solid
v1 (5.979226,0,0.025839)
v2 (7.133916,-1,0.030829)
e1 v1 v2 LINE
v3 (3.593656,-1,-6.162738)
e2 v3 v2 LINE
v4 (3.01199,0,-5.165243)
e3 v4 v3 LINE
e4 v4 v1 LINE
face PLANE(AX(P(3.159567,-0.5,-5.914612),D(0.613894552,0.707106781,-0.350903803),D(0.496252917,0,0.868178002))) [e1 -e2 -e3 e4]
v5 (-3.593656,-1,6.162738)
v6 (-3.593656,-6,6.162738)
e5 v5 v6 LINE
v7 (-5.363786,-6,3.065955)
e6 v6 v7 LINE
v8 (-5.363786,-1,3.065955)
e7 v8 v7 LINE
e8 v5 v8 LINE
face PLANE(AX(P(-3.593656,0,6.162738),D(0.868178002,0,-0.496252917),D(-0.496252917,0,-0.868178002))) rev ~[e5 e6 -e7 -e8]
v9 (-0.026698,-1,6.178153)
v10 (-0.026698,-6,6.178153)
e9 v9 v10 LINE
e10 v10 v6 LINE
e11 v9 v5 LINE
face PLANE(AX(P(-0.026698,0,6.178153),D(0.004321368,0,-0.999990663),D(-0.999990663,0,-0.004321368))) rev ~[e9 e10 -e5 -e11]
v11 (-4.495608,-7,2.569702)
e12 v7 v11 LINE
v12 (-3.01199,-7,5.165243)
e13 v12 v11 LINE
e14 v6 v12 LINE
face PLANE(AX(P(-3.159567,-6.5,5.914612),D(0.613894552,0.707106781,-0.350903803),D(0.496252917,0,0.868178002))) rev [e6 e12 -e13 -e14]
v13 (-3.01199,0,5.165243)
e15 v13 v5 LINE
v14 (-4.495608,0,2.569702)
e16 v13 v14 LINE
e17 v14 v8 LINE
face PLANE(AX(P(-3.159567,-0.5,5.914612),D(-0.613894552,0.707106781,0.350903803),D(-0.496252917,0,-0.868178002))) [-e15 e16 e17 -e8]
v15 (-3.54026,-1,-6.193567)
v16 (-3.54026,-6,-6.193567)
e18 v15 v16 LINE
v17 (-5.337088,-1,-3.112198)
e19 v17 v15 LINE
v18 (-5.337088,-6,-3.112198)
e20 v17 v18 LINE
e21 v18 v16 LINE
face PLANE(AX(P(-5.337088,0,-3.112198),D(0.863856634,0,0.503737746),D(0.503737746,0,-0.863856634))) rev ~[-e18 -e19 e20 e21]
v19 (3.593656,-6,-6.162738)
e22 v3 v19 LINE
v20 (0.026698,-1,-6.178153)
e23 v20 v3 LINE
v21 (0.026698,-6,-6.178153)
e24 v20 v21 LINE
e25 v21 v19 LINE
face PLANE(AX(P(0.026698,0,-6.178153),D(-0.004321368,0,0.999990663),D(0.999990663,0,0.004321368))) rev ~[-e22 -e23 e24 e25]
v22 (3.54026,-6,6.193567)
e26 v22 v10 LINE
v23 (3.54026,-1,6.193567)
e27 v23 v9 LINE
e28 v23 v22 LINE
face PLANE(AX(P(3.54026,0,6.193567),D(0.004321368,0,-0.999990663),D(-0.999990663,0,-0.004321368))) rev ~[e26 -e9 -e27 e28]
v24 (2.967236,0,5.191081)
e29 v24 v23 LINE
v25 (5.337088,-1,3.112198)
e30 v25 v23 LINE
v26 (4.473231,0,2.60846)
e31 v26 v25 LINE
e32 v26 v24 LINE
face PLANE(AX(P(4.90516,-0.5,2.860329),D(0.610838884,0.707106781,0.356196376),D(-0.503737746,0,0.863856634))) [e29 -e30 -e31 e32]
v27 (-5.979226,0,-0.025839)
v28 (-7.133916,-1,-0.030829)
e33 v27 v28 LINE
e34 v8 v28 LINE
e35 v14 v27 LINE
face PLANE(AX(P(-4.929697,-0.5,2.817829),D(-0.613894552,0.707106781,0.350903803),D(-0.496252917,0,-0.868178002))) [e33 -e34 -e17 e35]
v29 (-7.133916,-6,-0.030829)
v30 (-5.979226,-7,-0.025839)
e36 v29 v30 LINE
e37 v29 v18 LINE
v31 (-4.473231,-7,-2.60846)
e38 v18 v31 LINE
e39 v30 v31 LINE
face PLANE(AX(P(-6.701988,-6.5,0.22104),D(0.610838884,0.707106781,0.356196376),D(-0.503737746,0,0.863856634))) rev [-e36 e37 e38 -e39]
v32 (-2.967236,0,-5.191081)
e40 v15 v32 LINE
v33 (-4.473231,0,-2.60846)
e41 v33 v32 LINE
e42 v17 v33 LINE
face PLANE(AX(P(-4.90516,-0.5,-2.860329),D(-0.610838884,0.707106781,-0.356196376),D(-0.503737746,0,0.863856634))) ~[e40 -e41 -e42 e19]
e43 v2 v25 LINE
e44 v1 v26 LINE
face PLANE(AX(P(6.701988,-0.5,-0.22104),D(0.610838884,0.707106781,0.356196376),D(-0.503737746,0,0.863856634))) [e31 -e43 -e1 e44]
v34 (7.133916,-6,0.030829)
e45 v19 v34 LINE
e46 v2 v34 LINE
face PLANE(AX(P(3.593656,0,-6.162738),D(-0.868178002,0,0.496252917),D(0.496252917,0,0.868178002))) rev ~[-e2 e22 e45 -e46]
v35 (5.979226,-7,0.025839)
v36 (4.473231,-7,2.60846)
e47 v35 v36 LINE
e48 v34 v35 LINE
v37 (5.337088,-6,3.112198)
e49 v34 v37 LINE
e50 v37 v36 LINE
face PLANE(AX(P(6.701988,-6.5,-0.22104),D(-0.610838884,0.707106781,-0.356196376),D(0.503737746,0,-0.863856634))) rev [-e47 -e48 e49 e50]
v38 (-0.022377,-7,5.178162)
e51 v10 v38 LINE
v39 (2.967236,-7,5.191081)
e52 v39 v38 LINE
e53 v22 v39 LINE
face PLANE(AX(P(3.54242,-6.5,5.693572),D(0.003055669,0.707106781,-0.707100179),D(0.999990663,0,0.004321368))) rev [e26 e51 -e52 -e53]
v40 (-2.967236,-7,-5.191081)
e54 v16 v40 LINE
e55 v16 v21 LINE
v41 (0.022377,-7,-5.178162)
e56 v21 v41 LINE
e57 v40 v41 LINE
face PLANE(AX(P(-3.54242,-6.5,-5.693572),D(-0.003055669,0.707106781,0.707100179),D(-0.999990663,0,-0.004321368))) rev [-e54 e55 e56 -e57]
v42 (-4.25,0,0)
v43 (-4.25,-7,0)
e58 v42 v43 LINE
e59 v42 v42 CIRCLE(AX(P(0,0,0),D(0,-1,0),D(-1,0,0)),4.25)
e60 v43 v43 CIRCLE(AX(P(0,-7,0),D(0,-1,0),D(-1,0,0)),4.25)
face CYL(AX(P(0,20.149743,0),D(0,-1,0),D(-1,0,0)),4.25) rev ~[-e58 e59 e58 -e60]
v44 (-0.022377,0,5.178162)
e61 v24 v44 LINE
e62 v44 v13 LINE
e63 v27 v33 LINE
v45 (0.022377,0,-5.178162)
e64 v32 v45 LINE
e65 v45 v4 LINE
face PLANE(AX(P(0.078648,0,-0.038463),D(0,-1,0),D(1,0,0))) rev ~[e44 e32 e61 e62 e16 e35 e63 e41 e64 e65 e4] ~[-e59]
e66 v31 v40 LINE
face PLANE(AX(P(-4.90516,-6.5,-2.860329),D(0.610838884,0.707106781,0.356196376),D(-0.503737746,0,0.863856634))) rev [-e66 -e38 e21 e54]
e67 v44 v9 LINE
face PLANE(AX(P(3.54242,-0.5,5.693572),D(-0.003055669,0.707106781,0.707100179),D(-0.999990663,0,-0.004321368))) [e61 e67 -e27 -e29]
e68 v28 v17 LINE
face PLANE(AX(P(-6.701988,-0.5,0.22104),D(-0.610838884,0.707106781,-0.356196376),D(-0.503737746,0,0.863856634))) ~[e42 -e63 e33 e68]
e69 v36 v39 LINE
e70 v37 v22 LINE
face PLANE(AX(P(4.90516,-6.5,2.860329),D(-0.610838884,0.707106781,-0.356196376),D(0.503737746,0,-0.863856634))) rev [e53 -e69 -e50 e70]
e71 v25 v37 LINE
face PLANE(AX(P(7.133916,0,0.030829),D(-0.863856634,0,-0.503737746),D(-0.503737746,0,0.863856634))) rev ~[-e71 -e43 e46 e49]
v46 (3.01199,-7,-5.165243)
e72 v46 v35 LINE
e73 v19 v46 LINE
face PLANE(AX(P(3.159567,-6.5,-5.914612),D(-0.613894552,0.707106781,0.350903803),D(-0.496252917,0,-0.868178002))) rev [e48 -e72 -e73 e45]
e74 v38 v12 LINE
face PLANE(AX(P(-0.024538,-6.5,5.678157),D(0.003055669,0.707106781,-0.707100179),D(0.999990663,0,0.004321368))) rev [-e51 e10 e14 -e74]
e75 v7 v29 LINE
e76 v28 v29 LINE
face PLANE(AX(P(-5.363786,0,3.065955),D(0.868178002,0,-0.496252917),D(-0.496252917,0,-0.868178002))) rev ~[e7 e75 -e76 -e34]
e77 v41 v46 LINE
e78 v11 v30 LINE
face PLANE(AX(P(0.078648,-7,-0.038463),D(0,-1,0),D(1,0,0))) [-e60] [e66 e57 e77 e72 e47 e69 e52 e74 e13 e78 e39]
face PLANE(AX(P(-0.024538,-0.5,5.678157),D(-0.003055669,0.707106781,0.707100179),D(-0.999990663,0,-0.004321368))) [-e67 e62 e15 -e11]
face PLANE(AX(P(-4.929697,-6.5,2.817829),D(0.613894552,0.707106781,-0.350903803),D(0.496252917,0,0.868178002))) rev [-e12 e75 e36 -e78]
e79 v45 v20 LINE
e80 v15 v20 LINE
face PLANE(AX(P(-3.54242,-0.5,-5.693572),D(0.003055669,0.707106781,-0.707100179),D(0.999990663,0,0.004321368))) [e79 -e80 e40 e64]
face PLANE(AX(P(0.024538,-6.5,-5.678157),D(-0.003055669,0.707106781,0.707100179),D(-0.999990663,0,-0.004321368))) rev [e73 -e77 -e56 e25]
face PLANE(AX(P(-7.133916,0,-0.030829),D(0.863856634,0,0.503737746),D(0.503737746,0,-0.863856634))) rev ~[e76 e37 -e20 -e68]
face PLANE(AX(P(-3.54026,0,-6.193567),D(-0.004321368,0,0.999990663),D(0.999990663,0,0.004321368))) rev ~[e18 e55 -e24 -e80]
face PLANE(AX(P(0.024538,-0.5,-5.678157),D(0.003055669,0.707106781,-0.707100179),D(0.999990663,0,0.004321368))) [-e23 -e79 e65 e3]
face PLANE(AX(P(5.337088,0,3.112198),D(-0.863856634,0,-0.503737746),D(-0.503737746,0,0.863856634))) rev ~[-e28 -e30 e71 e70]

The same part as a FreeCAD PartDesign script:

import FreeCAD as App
import Part
import Sketcher


def edges_at(feature, points):
    """Names of the edges that pass closest to the given points."""
    edges = feature.Shape.Edges
    near = lambda p: min(range(len(edges)), key=lambda i: edges[i].distToShape(Part.Vertex(*p))[0])
    return sorted({f"Edge{near(p) + 1}" for p in points})


def add_polygon(sketch, points):
    """Adds a closed chain of lines whose ends are joined by coincident constraints."""
    first, n = sketch.GeometryCount, len(points)
    for a, b in zip(points, points[1:] + points[:1]):
        sketch.addGeometry(Part.LineSegment(App.Vector(*a, 0), App.Vector(*b, 0)), False)
    for i in range(n):
        sketch.addConstraint(Sketcher.Constraint("Coincident", first + i, 2, first + (i + 1) % n, 1))

doc = App.newDocument("Part")
params = doc.addObject("Spreadsheet::Sheet", "Params")
for row, (alias, value) in enumerate([
    ("pad1_length", "7 mm"),
    ("chamfer_size", "1 mm"),
    ("chamfer2_size", "1 mm"),
    ("sketch2_diameter", "8.5 mm"),
    ("hole_diameter", "8.5 mm"),
], start=1):
    params.set(f"A{row}", alias)
    params.set(f"B{row}", "=" + value)
    params.setAlias(f"B{row}", alias)

body = doc.addObject("PartDesign::Body", "Body")

# Sketch on XZ plane
sketch1 = body.newObject("Sketcher::SketchObject", "Sketch")
sketch1.AttachmentSupport = (doc.getObject("XZ_Plane"), [""])
sketch1.MapMode = "FlatFace"
add_polygon(sketch1, [(-5.3, -3.1), (-3.5, -6.2), (0, -6.2), (3.6, -6.2), (7.1, 0), (5.3, 3.1), (3.5, 6.2), (0, 6.2), (-3.6, 6.2), (-5.4, 3.1), (-7.1, 0)])  # lines 0-10
sketch1.addConstraint(Sketcher.Constraint("Symmetric", 0, 2, 5, 2, -1, 1))
sketch1.addConstraint(Sketcher.Constraint("Symmetric", 1, 2, 6, 2, -1, 1))
sketch1.addConstraint(Sketcher.Constraint("Symmetric", 2, 2, 7, 2, -1, 1))
sketch1.addConstraint(Sketcher.Constraint("Symmetric", 3, 2, 9, 2, -1, 1))
sketch1.addConstraint(Sketcher.Constraint("Symmetric", 4, 2, 10, 2, -1, 1))
sketch1.addConstraint(Sketcher.Constraint("Parallel", 1, 2))
sketch1.addConstraint(Sketcher.Constraint("Parallel", 0, 4))
sketch1.addConstraint(Sketcher.Constraint("Parallel", 3, 8))
sketch1.addConstraint(Sketcher.Constraint("Equal", 0, 1))
sketch1.addConstraint(Sketcher.Constraint("Equal", 1, 2))
sketch1.addConstraint(Sketcher.Constraint("Equal", 2, 4))
sketch1.addConstraint(Sketcher.Constraint("Equal", 7, 8))
sketch1.addConstraint(Sketcher.Constraint("Equal", 8, 9))
sketch1.addConstraint(Sketcher.Constraint("DistanceX", -1, 1, 1, 2, 0.026698))
sketch1.addConstraint(Sketcher.Constraint("Distance", 0, 3.566991))
sketch1.addConstraint(Sketcher.Constraint("DistanceY", 2, 2, -1, 1, 6.162738))
sketch1.addConstraint(Sketcher.Constraint("DistanceY", -1, 1, 3, 2, 0.030829))
pad1 = body.newObject("PartDesign::Pad", "Pad")
pad1.Profile = sketch1
pad1.setExpression("Length", "Params.pad1_length")
doc.recompute()

chamfer = body.newObject("PartDesign::Chamfer", "Chamfer")
chamfer.Base = (pad1, edges_at(pad1, [
    (-4.479, -7, 4.614),
    (1.757, -7, 6.186),
    (4.439, -7, 4.653),
    (5.364, -7, -3.066),
    (-1.757, -7, -6.186),
    (-4.439, -7, -4.653),
]))
chamfer.setExpression("Size", "Params.chamfer_size")
doc.recompute()

chamfer2 = body.newObject("PartDesign::Chamfer", "Chamfer001")
chamfer2.Base = (chamfer, edges_at(chamfer, [
    (4.439, 0, 4.653),
    (1.757, 0, 6.186),
    (-4.479, 0, 4.614),
    (-4.439, 0, -4.653),
    (-1.757, 0, -6.186),
    (5.364, 0, -3.066),
]))
chamfer2.setExpression("Size", "Params.chamfer2_size")

# Sketch on XZ plane
sketch2 = body.newObject("Sketcher::SketchObject", "Sketch001")
sketch2.AttachmentSupport = (doc.getObject("XZ_Plane"), [""])
sketch2.MapMode = "FlatFace"
sketch2.addGeometry(Part.Circle(App.Vector(0, 0, 0), App.Vector(0, 0, 1), 4.2), False)
sketch2.addConstraint(Sketcher.Constraint("Coincident", 0, 3, -1, 1))
sketch2.addConstraint(Sketcher.Constraint("Diameter", 0, 8.5))
sketch2.setExpression("Constraints[1]", "Params.sketch2_diameter")
doc.recompute()
hole = body.newObject("PartDesign::Hole", "Hole")
hole.Profile = sketch2
hole.ThreadType = "None"
hole.setExpression("Diameter", "Params.hole_diameter")
hole.DepthType = "ThroughAll"
hole.Reversed = True

doc.recompute()
